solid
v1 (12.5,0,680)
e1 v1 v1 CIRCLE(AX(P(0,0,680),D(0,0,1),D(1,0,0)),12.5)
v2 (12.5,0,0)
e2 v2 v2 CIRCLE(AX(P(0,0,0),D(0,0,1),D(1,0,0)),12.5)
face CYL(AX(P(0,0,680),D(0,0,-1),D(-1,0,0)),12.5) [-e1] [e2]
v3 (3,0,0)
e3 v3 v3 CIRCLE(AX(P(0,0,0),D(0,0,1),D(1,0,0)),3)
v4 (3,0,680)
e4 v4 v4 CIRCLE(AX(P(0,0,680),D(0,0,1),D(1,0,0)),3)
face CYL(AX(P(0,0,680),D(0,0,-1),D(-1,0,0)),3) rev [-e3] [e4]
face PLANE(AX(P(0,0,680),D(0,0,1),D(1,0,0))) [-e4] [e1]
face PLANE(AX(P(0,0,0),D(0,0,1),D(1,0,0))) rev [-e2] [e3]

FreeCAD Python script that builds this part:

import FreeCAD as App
import Part
import Sketcher

doc = App.newDocument("Part")
body = doc.addObject("PartDesign::Body", "Body")

sketch1 = body.newObject("Sketcher::SketchObject", "Sketch")
sketch1.AttachmentSupport = (doc.getObject("XY_Plane"), [""])
sketch1.MapMode = "FlatFace"
sketch1.addGeometry([
    Part.Circle(App.Vector(0, 0, 0), App.Vector(0, 0, 1), 12.5),
    Part.Circle(App.Vector(0, 0, 0), App.Vector(0, 0, 1), 3),
], False)
sketch1.addConstraint([
    Sketcher.Constraint("Coincident", 0, 3, -1, 1),
    Sketcher.Constraint("Coincident", 1, 3, -1, 1),
    Sketcher.Constraint("Diameter", 0, 25.0),
    Sketcher.Constraint("Diameter", 1, 6.0),
])
pad1 = body.newObject("PartDesign::Pad", "Pad")
pad1.Profile = sketch1
pad1.Length = 680

doc.recompute()
